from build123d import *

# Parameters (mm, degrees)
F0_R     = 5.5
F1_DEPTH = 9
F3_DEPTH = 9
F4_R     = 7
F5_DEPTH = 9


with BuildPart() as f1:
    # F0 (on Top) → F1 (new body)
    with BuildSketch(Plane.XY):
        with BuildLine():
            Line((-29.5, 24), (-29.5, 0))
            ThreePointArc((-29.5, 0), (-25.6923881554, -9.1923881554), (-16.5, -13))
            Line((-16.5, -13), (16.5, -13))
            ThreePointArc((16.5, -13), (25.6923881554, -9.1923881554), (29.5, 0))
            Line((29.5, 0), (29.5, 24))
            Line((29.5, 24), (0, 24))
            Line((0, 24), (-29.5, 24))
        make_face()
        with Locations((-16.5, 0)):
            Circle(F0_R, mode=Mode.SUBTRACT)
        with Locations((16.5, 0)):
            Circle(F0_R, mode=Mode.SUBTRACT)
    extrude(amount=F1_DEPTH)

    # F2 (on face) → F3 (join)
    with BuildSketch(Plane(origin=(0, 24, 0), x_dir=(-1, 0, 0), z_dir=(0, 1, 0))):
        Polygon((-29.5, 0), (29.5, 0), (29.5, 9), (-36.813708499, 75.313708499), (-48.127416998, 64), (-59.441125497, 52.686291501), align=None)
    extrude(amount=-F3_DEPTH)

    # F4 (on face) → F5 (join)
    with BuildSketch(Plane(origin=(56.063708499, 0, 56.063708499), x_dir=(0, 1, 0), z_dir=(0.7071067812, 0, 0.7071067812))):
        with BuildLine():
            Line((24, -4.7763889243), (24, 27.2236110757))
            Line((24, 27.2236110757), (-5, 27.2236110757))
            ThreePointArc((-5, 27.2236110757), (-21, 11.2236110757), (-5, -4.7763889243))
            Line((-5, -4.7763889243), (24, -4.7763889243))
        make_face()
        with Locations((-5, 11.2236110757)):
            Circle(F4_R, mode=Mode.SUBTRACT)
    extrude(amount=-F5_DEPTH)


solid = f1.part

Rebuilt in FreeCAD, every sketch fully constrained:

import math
import FreeCAD as App
import Part
import Sketcher
from FreeCAD import Vector
Q = App.Units.Quantity

doc = App.newDocument("Part")
body = doc.addObject("PartDesign::Body", "Body")

# Sketch on XY plane
sketch1 = body.newObject("Sketcher::SketchObject", "Sketch")
sketch1.AttachmentSupport = (doc.getObject("XY_Plane"), [""])
sketch1.MapMode = "FlatFace"
sketch1.addGeometry([
    Part.LineSegment(Vector(-29.5, 24, 0), Vector(-29.5, 0, 0)),  # 0
    Part.ArcOfCircle(Part.Circle(Vector(-16.5, 0, 0), Vector(0, 0, 1), 13), math.radians(180), math.radians(270)),  # 1
    Part.LineSegment(Vector(-16.5, -13, 0), Vector(16.5, -13, 0)),  # 2
    Part.ArcOfCircle(Part.Circle(Vector(16.5, 0, 0), Vector(0, 0, 1), 13), math.radians(-90), math.radians(0)),  # 3
    Part.LineSegment(Vector(29.5, 0, 0), Vector(29.5, 24, 0)),  # 4
    Part.LineSegment(Vector(29.5, 24, 0), Vector(-29.5, 24, 0)),  # 5
    Part.Circle(Vector(-16.5, 0, 0), Vector(0, 0, 1), 5.5),  # 6
    Part.Circle(Vector(16.5, 0, 0), Vector(0, 0, 1), 5.5),  # 7
], False)
sketch1.addConstraint([
    Sketcher.Constraint("Tangent", 0, 2, 1, 1),
    Sketcher.Constraint("Tangent", 1, 2, 2, 1),
    Sketcher.Constraint("Tangent", 2, 2, 3, 1),
    Sketcher.Constraint("Tangent", 3, 2, 4, 1),
    Sketcher.Constraint("Coincident", 4, 2, 5, 1),
    Sketcher.Constraint("Coincident", 5, 2, 0, 1),
    Sketcher.Constraint("Vertical", 0),
    Sketcher.Constraint("Horizontal", 2),
    Sketcher.Constraint("Vertical", 4),
    Sketcher.Constraint("Horizontal", 5),
    Sketcher.Constraint("Coincident", 6, 3, 1, 3),
    Sketcher.Constraint("Coincident", 7, 3, 3, 3),
    Sketcher.Constraint("Equal", 1, 3),
    Sketcher.Constraint("Equal", 6, 7),
    Sketcher.Constraint("Symmetric", 1, 3, 3, 3, -1, 1),
    Sketcher.Constraint("Diameter", 6, 11.0),
    Sketcher.Constraint("Radius", 1, 13.0),
    Sketcher.Constraint("DistanceX", 2, 1, 2, 2, 33.0),
    Sketcher.Constraint("DistanceY", 0, 2, 0, 1, 24.0),
])
pad1 = body.newObject("PartDesign::Pad", "Pad")
pad1.Profile = sketch1
pad1.Length = 9

# Sketch on XZ plane
sketch2 = body.newObject("Sketcher::SketchObject", "Sketch001")
sketch2.AttachmentSupport = (doc.getObject("XZ_Plane"), [""])
sketch2.MapMode = "FlatFace"
sketch2.AttachmentOffset = App.Placement(Vector(0, 0, -24), App.Rotation())
sketch2.addGeometry([
    Part.LineSegment(Vector(29.5, 0, 0), Vector(-29.5, 0, 0)),  # 0
    Part.LineSegment(Vector(-29.5, 0, 0), Vector(-29.5, 9, 0)),  # 1
    Part.LineSegment(Vector(-29.5, 9, 0), Vector(36.813708, 75.313708, 0)),  # 2
    Part.LineSegment(Vector(36.813708, 75.313708, 0), Vector(59.441125, 52.686292, 0)),  # 3
    Part.LineSegment(Vector(59.441125, 52.686292, 0), Vector(29.5, 0, 0)),  # 4
], False)
sketch2.addConstraint([
    Sketcher.Constraint("Coincident", 0, 2, 1, 1),
    Sketcher.Constraint("Coincident", 1, 2, 2, 1),
    Sketcher.Constraint("Coincident", 2, 2, 3, 1),
    Sketcher.Constraint("Coincident", 3, 2, 4, 1),
    Sketcher.Constraint("Coincident", 4, 2, 0, 1),
    Sketcher.Constraint("Horizontal", 0),
    Sketcher.Constraint("Vertical", 1),
    Sketcher.Constraint("Symmetric", 0, 2, 4, 2, -1, 1),
    Sketcher.Constraint("Perpendicular", 2, 3),
    Sketcher.Constraint("DistanceX", 0, 2, 0, 1, 59.0),
    Sketcher.Constraint("DistanceY", 1, 1, 1, 2, 9.0),
    Sketcher.Constraint("Angle", 2, Q("45 deg")),
    Sketcher.Constraint("Distance", 3, 32.0),
    Sketcher.Constraint("Distance", 4, 60.59964),
])
pad2 = body.newObject("PartDesign::Pad", "Pad001")
pad2.Profile = sketch2
pad2.Length = 9

# Sketch on an angled plane
sketch3 = body.newObject("Sketcher::SketchObject", "Sketch002")
sketch3.Placement = App.Placement(Vector(56.063708, 0, 56.063708), App.Rotation(Vector(0, 1, 0), Vector(-0.707106781, 0, 0.707106781), Vector(0.707106781, 0, 0.707106781), "ZXY"))
sketch3.addGeometry([
    Part.LineSegment(Vector(24, -4.776389, 0), Vector(24, 27.223611, 0)),  # 0
    Part.LineSegment(Vector(24, 27.223611, 0), Vector(-5, 27.223611, 0)),  # 1
    Part.ArcOfCircle(Part.Circle(Vector(-5, 11.223611, 0), Vector(0, 0, 1), 16), math.radians(90), math.radians(270)),  # 2
    Part.LineSegment(Vector(-5, -4.776389, 0), Vector(24, -4.776389, 0)),  # 3
    Part.Circle(Vector(-5, 11.223611, 0), Vector(0, 0, 1), 7),  # 4
], False)
sketch3.addConstraint([
    Sketcher.Constraint("Coincident", 0, 2, 1, 1),
    Sketcher.Constraint("Tangent", 1, 2, 2, 1),
    Sketcher.Constraint("Tangent", 2, 2, 3, 1),
    Sketcher.Constraint("Coincident", 3, 2, 0, 1),
    Sketcher.Constraint("Vertical", 0),
    Sketcher.Constraint("Horizontal", 1),
    Sketcher.Constraint("Horizontal", 3),
    Sketcher.Constraint("Coincident", 4, 3, 2, 3),
    Sketcher.Constraint("Diameter", 4, 14.0),
    Sketcher.Constraint("Radius", 2, 16.0),
    Sketcher.Constraint("DistanceX", 1, 2, 1, 1, 29.0),
    Sketcher.Constraint("DistanceX", 2, 3, -1, 1, 5.0),
    Sketcher.Constraint("DistanceY", -1, 1, 2, 3, 11.223611),
])
pad3 = body.newObject("PartDesign::Pad", "Pad002")
pad3.Profile = sketch3
pad3.Length = 9
pad3.Reversed = True

doc.recompute()
